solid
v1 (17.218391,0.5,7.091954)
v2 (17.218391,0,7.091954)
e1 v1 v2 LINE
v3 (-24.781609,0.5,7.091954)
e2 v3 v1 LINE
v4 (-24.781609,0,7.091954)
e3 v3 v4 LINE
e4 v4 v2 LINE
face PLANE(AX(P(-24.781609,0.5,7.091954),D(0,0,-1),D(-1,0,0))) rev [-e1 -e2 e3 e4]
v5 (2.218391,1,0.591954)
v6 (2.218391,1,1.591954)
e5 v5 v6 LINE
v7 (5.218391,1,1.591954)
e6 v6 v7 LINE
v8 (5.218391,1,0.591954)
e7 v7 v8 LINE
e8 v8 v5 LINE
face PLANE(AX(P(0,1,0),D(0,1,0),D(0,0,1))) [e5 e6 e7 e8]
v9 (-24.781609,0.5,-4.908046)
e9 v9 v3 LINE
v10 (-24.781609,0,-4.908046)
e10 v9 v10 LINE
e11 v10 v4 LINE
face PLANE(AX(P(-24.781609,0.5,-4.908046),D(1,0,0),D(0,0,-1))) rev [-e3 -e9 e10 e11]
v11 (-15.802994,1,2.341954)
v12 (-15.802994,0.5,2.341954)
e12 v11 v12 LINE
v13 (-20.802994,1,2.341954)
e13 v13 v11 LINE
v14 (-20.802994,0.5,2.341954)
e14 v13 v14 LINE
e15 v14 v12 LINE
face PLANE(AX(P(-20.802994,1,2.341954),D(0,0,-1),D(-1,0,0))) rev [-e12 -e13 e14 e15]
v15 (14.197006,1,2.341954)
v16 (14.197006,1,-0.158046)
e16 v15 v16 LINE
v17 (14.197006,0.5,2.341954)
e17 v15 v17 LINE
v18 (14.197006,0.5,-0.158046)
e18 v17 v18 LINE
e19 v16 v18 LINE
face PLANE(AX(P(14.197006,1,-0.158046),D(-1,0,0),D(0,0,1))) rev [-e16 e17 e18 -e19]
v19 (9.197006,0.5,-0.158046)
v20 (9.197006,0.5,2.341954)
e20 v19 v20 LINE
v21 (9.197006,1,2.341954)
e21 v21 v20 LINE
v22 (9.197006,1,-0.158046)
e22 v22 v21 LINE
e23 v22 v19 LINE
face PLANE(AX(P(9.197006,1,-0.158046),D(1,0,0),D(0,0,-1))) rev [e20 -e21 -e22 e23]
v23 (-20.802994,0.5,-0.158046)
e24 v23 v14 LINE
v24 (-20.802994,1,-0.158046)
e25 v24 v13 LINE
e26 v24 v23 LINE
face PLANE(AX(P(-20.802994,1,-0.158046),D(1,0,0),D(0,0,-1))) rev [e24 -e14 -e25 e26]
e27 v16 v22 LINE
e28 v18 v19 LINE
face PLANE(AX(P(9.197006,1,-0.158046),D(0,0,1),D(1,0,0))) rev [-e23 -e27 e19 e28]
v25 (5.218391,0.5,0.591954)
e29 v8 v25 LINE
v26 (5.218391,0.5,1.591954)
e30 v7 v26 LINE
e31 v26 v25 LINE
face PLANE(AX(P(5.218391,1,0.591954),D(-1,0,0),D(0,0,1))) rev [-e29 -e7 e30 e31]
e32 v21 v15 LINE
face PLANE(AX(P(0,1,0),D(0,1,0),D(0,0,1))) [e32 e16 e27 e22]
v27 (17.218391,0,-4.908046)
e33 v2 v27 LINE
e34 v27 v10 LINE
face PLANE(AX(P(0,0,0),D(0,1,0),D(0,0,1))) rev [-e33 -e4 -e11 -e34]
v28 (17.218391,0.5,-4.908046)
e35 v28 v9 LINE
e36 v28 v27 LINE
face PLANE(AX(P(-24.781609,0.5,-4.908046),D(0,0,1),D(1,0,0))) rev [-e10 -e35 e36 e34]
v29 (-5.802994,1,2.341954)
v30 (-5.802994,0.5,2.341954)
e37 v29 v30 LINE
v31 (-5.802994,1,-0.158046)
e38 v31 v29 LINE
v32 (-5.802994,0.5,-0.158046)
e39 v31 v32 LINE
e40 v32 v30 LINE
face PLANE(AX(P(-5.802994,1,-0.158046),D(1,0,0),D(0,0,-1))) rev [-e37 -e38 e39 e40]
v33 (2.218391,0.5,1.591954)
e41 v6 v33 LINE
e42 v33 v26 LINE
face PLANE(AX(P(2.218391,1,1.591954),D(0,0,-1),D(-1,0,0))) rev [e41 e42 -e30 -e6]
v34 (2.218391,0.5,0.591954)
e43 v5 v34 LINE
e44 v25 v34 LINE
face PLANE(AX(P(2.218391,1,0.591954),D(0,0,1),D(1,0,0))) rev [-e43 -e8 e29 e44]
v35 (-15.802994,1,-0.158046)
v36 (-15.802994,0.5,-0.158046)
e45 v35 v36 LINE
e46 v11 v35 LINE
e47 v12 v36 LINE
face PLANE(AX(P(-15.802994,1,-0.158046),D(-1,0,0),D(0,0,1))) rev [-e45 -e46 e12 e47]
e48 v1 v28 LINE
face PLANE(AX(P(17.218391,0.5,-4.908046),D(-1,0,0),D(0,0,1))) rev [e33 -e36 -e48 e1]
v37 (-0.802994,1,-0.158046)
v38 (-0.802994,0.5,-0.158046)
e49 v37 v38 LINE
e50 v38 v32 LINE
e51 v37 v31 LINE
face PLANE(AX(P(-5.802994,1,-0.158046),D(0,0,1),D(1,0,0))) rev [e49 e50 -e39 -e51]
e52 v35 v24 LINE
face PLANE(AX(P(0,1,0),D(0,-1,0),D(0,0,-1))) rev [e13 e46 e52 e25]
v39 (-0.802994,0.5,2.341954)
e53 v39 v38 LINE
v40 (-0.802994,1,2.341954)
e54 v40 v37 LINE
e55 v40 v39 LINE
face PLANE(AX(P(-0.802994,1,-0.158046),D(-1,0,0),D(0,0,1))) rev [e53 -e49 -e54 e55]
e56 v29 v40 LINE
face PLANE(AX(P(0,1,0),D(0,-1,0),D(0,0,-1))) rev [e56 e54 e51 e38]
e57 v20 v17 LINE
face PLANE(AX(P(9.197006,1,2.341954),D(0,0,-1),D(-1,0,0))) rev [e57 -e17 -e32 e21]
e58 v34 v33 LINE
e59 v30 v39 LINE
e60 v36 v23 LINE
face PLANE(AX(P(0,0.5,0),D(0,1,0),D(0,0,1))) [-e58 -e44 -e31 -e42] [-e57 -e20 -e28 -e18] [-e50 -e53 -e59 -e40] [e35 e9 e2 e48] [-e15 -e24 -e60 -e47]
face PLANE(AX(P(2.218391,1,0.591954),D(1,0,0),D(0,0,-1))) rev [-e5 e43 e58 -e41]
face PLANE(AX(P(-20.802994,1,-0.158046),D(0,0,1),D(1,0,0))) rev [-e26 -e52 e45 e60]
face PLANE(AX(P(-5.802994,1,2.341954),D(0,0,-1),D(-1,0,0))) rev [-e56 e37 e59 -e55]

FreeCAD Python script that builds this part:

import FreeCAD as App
import Part
import Sketcher
from FreeCAD import Vector
Q = App.Units.Quantity

doc = App.newDocument("Part")
body = doc.addObject("PartDesign::Body", "Body")

# Sketch on XZ plane
sketch1 = doc.addObject("Sketcher::SketchObject", "Sketch")
body.addObject(sketch1)
sketch1.AttachmentSupport = (doc.XZ_Plane, [""])
sketch1.MapMode = "FlatFace"
sketch1.addGeometry(Part.LineSegment(Vector(-25, -5, 0), Vector(-25, 7, 0)), False)
sketch1.addGeometry(Part.LineSegment(Vector(-25, 7, 0), Vector(17, 7, 0)), False)
sketch1.addGeometry(Part.LineSegment(Vector(17, 7, 0), Vector(17, -5, 0)), False)
sketch1.addGeometry(Part.LineSegment(Vector(17, -5, 0), Vector(-25, -5, 0)), False)
sketch1.addConstraint(Sketcher.Constraint("Coincident", 0, 2, 1, 1))
sketch1.addConstraint(Sketcher.Constraint("Coincident", 1, 2, 2, 1))
sketch1.addConstraint(Sketcher.Constraint("Coincident", 2, 2, 3, 1))
sketch1.addConstraint(Sketcher.Constraint("Coincident", 3, 2, 0, 1))
sketch1.addConstraint(Sketcher.Constraint("Vertical", 0))
sketch1.addConstraint(Sketcher.Constraint("Horizontal", 1))
sketch1.addConstraint(Sketcher.Constraint("Vertical", 2))
sketch1.addConstraint(Sketcher.Constraint("Horizontal", 3))
sketch1.addConstraint(Sketcher.Constraint("DistanceX", 1, 1, 1, 2, Q("42 mm")))
sketch1.addConstraint(Sketcher.Constraint("DistanceY", 0, 1, 0, 2, Q("12 mm")))
sketch1.addConstraint(Sketcher.Constraint("DistanceX", 0, 2, -1, 1, Q("24.781609 mm")))
sketch1.addConstraint(Sketcher.Constraint("DistanceY", -1, 1, 0, 2, Q("7.091954 mm")))
pad1 = doc.addObject("PartDesign::Pad", "Pad")
body.addObject(pad1)
pad1.Profile = sketch1
pad1.Length = 0.5
pad1.Reversed = True

# Sketch on XZ plane
sketch2 = doc.addObject("Sketcher::SketchObject", "Sketch001")
body.addObject(sketch2)
sketch2.AttachmentSupport = (doc.XZ_Plane, [""])
sketch2.MapMode = "FlatFace"
sketch2.AttachmentOffset = App.Placement(Vector(0, 0, -0.5), App.Rotation())
sketch2.addGeometry(Part.LineSegment(Vector(-5.8, -0.2, 0), Vector(-5.8, 2.3, 0)), False)
sketch2.addGeometry(Part.LineSegment(Vector(-5.8, 2.3, 0), Vector(-0.8, 2.3, 0)), False)
sketch2.addGeometry(Part.LineSegment(Vector(-0.8, 2.3, 0), Vector(-0.8, -0.2, 0)), False)
sketch2.addGeometry(Part.LineSegment(Vector(-0.8, -0.2, 0), Vector(-5.8, -0.2, 0)), False)
sketch2.addGeometry(Part.LineSegment(Vector(9.2, -0.2, 0), Vector(9.2, 2.3, 0)), False)
sketch2.addGeometry(Part.LineSegment(Vector(9.2, 2.3, 0), Vector(14.2, 2.3, 0)), False)
sketch2.addGeometry(Part.LineSegment(Vector(14.2, 2.3, 0), Vector(14.2, -0.2, 0)), False)
sketch2.addGeometry(Part.LineSegment(Vector(14.2, -0.2, 0), Vector(9.2, -0.2, 0)), False)
sketch2.addGeometry(Part.LineSegment(Vector(-20.8, -0.2, 0), Vector(-20.8, 2.3, 0)), False)
sketch2.addGeometry(Part.LineSegment(Vector(-20.8, 2.3, 0), Vector(-15.8, 2.3, 0)), False)
sketch2.addGeometry(Part.LineSegment(Vector(-15.8, 2.3, 0), Vector(-15.8, -0.2, 0)), False)
sketch2.addGeometry(Part.LineSegment(Vector(-15.8, -0.2, 0), Vector(-20.8, -0.2, 0)), False)
sketch2.addGeometry(Part.LineSegment(Vector(2.2, 0.6, 0), Vector(2.2, 1.6, 0)), False)
sketch2.addGeometry(Part.LineSegment(Vector(2.2, 1.6, 0), Vector(5.2, 1.6, 0)), False)
sketch2.addGeometry(Part.LineSegment(Vector(5.2, 1.6, 0), Vector(5.2, 0.6, 0)), False)
sketch2.addGeometry(Part.LineSegment(Vector(5.2, 0.6, 0), Vector(2.2, 0.6, 0)), False)
sketch2.addConstraint(Sketcher.Constraint("Coincident", 0, 2, 1, 1))
sketch2.addConstraint(Sketcher.Constraint("Coincident", 1, 2, 2, 1))
sketch2.addConstraint(Sketcher.Constraint("Coincident", 2, 2, 3, 1))
sketch2.addConstraint(Sketcher.Constraint("Coincident", 3, 2, 0, 1))
sketch2.addConstraint(Sketcher.Constraint("Coincident", 4, 2, 5, 1))
sketch2.addConstraint(Sketcher.Constraint("Coincident", 5, 2, 6, 1))
sketch2.addConstraint(Sketcher.Constraint("Coincident", 6, 2, 7, 1))
sketch2.addConstraint(Sketcher.Constraint("Coincident", 7, 2, 4, 1))
sketch2.addConstraint(Sketcher.Constraint("Coincident", 8, 2, 9, 1))
sketch2.addConstraint(Sketcher.Constraint("Coincident", 9, 2, 10, 1))
sketch2.addConstraint(Sketcher.Constraint("Coincident", 10, 2, 11, 1))
sketch2.addConstraint(Sketcher.Constraint("Coincident", 11, 2, 8, 1))
sketch2.addConstraint(Sketcher.Constraint("Coincident", 12, 2, 13, 1))
sketch2.addConstraint(Sketcher.Constraint("Coincident", 13, 2, 14, 1))
sketch2.addConstraint(Sketcher.Constraint("Coincident", 14, 2, 15, 1))
sketch2.addConstraint(Sketcher.Constraint("Coincident", 15, 2, 12, 1))
sketch2.addConstraint(Sketcher.Constraint("Vertical", 0))
sketch2.addConstraint(Sketcher.Constraint("Horizontal", 1))
sketch2.addConstraint(Sketcher.Constraint("Vertical", 2))
sketch2.addConstraint(Sketcher.Constraint("Horizontal", 3))
sketch2.addConstraint(Sketcher.Constraint("Vertical", 4))
sketch2.addConstraint(Sketcher.Constraint("Horizontal", 5))
sketch2.addConstraint(Sketcher.Constraint("Vertical", 6))
sketch2.addConstraint(Sketcher.Constraint("Horizontal", 7))
sketch2.addConstraint(Sketcher.Constraint("Vertical", 8))
sketch2.addConstraint(Sketcher.Constraint("Horizontal", 9))
sketch2.addConstraint(Sketcher.Constraint("Vertical", 10))
sketch2.addConstraint(Sketcher.Constraint("Horizontal", 11))
sketch2.addConstraint(Sketcher.Constraint("Vertical", 12))
sketch2.addConstraint(Sketcher.Constraint("Horizontal", 13))
sketch2.addConstraint(Sketcher.Constraint("Vertical", 14))
sketch2.addConstraint(Sketcher.Constraint("Horizontal", 15))
sketch2.addConstraint(Sketcher.Constraint("Horizontal", 1, 2, 4, 2))
sketch2.addConstraint(Sketcher.Constraint("Horizontal", 3, 2, 6, 2))
sketch2.addConstraint(Sketcher.Constraint("Horizontal", 5, 2, 8, 2))
sketch2.addConstraint(Sketcher.Constraint("Horizontal", 7, 2, 10, 2))
sketch2.addConstraint(Sketcher.Constraint("Equal", 3, 5))
sketch2.addConstraint(Sketcher.Constraint("Equal", 7, 9))
sketch2.addConstraint(Sketcher.Constraint("DistanceX", 1, 1, 1, 2, Q("5 mm")))
sketch2.addConstraint(Sketcher.Constraint("DistanceX", 13, 1, 13, 2, Q("3 mm")))
sketch2.addConstraint(Sketcher.Constraint("DistanceY", 12, 1, 12, 2, Q("1 mm")))
sketch2.addConstraint(Sketcher.Constraint("DistanceY", 0, 1, 0, 2, Q("2.5 mm")))
sketch2.addConstraint(Sketcher.Constraint("DistanceX", 1, 2, 4, 2, Q("10 mm")))
sketch2.addConstraint(Sketcher.Constraint("DistanceX", 8, 2, 0, 2, Q("15 mm")))
sketch2.addConstraint(Sketcher.Constraint("DistanceY", 12, 2, 1, 2, Q("0.75 mm")))
sketch2.addConstraint(Sketcher.Constraint("DistanceX", -1, 1, 12, 2, Q("2.218391 mm")))
sketch2.addConstraint(Sketcher.Constraint("DistanceX", 0, 2, -1, 1, Q("5.802994 mm")))
sketch2.addConstraint(Sketcher.Constraint("DistanceY", -1, 1, 0, 2, Q("2.341954 mm")))
pad2 = doc.addObject("PartDesign::Pad", "Pad001")
body.addObject(pad2)
pad2.Profile = sketch2
pad2.Length = 0.5
pad2.Reversed = True

doc.recompute()
